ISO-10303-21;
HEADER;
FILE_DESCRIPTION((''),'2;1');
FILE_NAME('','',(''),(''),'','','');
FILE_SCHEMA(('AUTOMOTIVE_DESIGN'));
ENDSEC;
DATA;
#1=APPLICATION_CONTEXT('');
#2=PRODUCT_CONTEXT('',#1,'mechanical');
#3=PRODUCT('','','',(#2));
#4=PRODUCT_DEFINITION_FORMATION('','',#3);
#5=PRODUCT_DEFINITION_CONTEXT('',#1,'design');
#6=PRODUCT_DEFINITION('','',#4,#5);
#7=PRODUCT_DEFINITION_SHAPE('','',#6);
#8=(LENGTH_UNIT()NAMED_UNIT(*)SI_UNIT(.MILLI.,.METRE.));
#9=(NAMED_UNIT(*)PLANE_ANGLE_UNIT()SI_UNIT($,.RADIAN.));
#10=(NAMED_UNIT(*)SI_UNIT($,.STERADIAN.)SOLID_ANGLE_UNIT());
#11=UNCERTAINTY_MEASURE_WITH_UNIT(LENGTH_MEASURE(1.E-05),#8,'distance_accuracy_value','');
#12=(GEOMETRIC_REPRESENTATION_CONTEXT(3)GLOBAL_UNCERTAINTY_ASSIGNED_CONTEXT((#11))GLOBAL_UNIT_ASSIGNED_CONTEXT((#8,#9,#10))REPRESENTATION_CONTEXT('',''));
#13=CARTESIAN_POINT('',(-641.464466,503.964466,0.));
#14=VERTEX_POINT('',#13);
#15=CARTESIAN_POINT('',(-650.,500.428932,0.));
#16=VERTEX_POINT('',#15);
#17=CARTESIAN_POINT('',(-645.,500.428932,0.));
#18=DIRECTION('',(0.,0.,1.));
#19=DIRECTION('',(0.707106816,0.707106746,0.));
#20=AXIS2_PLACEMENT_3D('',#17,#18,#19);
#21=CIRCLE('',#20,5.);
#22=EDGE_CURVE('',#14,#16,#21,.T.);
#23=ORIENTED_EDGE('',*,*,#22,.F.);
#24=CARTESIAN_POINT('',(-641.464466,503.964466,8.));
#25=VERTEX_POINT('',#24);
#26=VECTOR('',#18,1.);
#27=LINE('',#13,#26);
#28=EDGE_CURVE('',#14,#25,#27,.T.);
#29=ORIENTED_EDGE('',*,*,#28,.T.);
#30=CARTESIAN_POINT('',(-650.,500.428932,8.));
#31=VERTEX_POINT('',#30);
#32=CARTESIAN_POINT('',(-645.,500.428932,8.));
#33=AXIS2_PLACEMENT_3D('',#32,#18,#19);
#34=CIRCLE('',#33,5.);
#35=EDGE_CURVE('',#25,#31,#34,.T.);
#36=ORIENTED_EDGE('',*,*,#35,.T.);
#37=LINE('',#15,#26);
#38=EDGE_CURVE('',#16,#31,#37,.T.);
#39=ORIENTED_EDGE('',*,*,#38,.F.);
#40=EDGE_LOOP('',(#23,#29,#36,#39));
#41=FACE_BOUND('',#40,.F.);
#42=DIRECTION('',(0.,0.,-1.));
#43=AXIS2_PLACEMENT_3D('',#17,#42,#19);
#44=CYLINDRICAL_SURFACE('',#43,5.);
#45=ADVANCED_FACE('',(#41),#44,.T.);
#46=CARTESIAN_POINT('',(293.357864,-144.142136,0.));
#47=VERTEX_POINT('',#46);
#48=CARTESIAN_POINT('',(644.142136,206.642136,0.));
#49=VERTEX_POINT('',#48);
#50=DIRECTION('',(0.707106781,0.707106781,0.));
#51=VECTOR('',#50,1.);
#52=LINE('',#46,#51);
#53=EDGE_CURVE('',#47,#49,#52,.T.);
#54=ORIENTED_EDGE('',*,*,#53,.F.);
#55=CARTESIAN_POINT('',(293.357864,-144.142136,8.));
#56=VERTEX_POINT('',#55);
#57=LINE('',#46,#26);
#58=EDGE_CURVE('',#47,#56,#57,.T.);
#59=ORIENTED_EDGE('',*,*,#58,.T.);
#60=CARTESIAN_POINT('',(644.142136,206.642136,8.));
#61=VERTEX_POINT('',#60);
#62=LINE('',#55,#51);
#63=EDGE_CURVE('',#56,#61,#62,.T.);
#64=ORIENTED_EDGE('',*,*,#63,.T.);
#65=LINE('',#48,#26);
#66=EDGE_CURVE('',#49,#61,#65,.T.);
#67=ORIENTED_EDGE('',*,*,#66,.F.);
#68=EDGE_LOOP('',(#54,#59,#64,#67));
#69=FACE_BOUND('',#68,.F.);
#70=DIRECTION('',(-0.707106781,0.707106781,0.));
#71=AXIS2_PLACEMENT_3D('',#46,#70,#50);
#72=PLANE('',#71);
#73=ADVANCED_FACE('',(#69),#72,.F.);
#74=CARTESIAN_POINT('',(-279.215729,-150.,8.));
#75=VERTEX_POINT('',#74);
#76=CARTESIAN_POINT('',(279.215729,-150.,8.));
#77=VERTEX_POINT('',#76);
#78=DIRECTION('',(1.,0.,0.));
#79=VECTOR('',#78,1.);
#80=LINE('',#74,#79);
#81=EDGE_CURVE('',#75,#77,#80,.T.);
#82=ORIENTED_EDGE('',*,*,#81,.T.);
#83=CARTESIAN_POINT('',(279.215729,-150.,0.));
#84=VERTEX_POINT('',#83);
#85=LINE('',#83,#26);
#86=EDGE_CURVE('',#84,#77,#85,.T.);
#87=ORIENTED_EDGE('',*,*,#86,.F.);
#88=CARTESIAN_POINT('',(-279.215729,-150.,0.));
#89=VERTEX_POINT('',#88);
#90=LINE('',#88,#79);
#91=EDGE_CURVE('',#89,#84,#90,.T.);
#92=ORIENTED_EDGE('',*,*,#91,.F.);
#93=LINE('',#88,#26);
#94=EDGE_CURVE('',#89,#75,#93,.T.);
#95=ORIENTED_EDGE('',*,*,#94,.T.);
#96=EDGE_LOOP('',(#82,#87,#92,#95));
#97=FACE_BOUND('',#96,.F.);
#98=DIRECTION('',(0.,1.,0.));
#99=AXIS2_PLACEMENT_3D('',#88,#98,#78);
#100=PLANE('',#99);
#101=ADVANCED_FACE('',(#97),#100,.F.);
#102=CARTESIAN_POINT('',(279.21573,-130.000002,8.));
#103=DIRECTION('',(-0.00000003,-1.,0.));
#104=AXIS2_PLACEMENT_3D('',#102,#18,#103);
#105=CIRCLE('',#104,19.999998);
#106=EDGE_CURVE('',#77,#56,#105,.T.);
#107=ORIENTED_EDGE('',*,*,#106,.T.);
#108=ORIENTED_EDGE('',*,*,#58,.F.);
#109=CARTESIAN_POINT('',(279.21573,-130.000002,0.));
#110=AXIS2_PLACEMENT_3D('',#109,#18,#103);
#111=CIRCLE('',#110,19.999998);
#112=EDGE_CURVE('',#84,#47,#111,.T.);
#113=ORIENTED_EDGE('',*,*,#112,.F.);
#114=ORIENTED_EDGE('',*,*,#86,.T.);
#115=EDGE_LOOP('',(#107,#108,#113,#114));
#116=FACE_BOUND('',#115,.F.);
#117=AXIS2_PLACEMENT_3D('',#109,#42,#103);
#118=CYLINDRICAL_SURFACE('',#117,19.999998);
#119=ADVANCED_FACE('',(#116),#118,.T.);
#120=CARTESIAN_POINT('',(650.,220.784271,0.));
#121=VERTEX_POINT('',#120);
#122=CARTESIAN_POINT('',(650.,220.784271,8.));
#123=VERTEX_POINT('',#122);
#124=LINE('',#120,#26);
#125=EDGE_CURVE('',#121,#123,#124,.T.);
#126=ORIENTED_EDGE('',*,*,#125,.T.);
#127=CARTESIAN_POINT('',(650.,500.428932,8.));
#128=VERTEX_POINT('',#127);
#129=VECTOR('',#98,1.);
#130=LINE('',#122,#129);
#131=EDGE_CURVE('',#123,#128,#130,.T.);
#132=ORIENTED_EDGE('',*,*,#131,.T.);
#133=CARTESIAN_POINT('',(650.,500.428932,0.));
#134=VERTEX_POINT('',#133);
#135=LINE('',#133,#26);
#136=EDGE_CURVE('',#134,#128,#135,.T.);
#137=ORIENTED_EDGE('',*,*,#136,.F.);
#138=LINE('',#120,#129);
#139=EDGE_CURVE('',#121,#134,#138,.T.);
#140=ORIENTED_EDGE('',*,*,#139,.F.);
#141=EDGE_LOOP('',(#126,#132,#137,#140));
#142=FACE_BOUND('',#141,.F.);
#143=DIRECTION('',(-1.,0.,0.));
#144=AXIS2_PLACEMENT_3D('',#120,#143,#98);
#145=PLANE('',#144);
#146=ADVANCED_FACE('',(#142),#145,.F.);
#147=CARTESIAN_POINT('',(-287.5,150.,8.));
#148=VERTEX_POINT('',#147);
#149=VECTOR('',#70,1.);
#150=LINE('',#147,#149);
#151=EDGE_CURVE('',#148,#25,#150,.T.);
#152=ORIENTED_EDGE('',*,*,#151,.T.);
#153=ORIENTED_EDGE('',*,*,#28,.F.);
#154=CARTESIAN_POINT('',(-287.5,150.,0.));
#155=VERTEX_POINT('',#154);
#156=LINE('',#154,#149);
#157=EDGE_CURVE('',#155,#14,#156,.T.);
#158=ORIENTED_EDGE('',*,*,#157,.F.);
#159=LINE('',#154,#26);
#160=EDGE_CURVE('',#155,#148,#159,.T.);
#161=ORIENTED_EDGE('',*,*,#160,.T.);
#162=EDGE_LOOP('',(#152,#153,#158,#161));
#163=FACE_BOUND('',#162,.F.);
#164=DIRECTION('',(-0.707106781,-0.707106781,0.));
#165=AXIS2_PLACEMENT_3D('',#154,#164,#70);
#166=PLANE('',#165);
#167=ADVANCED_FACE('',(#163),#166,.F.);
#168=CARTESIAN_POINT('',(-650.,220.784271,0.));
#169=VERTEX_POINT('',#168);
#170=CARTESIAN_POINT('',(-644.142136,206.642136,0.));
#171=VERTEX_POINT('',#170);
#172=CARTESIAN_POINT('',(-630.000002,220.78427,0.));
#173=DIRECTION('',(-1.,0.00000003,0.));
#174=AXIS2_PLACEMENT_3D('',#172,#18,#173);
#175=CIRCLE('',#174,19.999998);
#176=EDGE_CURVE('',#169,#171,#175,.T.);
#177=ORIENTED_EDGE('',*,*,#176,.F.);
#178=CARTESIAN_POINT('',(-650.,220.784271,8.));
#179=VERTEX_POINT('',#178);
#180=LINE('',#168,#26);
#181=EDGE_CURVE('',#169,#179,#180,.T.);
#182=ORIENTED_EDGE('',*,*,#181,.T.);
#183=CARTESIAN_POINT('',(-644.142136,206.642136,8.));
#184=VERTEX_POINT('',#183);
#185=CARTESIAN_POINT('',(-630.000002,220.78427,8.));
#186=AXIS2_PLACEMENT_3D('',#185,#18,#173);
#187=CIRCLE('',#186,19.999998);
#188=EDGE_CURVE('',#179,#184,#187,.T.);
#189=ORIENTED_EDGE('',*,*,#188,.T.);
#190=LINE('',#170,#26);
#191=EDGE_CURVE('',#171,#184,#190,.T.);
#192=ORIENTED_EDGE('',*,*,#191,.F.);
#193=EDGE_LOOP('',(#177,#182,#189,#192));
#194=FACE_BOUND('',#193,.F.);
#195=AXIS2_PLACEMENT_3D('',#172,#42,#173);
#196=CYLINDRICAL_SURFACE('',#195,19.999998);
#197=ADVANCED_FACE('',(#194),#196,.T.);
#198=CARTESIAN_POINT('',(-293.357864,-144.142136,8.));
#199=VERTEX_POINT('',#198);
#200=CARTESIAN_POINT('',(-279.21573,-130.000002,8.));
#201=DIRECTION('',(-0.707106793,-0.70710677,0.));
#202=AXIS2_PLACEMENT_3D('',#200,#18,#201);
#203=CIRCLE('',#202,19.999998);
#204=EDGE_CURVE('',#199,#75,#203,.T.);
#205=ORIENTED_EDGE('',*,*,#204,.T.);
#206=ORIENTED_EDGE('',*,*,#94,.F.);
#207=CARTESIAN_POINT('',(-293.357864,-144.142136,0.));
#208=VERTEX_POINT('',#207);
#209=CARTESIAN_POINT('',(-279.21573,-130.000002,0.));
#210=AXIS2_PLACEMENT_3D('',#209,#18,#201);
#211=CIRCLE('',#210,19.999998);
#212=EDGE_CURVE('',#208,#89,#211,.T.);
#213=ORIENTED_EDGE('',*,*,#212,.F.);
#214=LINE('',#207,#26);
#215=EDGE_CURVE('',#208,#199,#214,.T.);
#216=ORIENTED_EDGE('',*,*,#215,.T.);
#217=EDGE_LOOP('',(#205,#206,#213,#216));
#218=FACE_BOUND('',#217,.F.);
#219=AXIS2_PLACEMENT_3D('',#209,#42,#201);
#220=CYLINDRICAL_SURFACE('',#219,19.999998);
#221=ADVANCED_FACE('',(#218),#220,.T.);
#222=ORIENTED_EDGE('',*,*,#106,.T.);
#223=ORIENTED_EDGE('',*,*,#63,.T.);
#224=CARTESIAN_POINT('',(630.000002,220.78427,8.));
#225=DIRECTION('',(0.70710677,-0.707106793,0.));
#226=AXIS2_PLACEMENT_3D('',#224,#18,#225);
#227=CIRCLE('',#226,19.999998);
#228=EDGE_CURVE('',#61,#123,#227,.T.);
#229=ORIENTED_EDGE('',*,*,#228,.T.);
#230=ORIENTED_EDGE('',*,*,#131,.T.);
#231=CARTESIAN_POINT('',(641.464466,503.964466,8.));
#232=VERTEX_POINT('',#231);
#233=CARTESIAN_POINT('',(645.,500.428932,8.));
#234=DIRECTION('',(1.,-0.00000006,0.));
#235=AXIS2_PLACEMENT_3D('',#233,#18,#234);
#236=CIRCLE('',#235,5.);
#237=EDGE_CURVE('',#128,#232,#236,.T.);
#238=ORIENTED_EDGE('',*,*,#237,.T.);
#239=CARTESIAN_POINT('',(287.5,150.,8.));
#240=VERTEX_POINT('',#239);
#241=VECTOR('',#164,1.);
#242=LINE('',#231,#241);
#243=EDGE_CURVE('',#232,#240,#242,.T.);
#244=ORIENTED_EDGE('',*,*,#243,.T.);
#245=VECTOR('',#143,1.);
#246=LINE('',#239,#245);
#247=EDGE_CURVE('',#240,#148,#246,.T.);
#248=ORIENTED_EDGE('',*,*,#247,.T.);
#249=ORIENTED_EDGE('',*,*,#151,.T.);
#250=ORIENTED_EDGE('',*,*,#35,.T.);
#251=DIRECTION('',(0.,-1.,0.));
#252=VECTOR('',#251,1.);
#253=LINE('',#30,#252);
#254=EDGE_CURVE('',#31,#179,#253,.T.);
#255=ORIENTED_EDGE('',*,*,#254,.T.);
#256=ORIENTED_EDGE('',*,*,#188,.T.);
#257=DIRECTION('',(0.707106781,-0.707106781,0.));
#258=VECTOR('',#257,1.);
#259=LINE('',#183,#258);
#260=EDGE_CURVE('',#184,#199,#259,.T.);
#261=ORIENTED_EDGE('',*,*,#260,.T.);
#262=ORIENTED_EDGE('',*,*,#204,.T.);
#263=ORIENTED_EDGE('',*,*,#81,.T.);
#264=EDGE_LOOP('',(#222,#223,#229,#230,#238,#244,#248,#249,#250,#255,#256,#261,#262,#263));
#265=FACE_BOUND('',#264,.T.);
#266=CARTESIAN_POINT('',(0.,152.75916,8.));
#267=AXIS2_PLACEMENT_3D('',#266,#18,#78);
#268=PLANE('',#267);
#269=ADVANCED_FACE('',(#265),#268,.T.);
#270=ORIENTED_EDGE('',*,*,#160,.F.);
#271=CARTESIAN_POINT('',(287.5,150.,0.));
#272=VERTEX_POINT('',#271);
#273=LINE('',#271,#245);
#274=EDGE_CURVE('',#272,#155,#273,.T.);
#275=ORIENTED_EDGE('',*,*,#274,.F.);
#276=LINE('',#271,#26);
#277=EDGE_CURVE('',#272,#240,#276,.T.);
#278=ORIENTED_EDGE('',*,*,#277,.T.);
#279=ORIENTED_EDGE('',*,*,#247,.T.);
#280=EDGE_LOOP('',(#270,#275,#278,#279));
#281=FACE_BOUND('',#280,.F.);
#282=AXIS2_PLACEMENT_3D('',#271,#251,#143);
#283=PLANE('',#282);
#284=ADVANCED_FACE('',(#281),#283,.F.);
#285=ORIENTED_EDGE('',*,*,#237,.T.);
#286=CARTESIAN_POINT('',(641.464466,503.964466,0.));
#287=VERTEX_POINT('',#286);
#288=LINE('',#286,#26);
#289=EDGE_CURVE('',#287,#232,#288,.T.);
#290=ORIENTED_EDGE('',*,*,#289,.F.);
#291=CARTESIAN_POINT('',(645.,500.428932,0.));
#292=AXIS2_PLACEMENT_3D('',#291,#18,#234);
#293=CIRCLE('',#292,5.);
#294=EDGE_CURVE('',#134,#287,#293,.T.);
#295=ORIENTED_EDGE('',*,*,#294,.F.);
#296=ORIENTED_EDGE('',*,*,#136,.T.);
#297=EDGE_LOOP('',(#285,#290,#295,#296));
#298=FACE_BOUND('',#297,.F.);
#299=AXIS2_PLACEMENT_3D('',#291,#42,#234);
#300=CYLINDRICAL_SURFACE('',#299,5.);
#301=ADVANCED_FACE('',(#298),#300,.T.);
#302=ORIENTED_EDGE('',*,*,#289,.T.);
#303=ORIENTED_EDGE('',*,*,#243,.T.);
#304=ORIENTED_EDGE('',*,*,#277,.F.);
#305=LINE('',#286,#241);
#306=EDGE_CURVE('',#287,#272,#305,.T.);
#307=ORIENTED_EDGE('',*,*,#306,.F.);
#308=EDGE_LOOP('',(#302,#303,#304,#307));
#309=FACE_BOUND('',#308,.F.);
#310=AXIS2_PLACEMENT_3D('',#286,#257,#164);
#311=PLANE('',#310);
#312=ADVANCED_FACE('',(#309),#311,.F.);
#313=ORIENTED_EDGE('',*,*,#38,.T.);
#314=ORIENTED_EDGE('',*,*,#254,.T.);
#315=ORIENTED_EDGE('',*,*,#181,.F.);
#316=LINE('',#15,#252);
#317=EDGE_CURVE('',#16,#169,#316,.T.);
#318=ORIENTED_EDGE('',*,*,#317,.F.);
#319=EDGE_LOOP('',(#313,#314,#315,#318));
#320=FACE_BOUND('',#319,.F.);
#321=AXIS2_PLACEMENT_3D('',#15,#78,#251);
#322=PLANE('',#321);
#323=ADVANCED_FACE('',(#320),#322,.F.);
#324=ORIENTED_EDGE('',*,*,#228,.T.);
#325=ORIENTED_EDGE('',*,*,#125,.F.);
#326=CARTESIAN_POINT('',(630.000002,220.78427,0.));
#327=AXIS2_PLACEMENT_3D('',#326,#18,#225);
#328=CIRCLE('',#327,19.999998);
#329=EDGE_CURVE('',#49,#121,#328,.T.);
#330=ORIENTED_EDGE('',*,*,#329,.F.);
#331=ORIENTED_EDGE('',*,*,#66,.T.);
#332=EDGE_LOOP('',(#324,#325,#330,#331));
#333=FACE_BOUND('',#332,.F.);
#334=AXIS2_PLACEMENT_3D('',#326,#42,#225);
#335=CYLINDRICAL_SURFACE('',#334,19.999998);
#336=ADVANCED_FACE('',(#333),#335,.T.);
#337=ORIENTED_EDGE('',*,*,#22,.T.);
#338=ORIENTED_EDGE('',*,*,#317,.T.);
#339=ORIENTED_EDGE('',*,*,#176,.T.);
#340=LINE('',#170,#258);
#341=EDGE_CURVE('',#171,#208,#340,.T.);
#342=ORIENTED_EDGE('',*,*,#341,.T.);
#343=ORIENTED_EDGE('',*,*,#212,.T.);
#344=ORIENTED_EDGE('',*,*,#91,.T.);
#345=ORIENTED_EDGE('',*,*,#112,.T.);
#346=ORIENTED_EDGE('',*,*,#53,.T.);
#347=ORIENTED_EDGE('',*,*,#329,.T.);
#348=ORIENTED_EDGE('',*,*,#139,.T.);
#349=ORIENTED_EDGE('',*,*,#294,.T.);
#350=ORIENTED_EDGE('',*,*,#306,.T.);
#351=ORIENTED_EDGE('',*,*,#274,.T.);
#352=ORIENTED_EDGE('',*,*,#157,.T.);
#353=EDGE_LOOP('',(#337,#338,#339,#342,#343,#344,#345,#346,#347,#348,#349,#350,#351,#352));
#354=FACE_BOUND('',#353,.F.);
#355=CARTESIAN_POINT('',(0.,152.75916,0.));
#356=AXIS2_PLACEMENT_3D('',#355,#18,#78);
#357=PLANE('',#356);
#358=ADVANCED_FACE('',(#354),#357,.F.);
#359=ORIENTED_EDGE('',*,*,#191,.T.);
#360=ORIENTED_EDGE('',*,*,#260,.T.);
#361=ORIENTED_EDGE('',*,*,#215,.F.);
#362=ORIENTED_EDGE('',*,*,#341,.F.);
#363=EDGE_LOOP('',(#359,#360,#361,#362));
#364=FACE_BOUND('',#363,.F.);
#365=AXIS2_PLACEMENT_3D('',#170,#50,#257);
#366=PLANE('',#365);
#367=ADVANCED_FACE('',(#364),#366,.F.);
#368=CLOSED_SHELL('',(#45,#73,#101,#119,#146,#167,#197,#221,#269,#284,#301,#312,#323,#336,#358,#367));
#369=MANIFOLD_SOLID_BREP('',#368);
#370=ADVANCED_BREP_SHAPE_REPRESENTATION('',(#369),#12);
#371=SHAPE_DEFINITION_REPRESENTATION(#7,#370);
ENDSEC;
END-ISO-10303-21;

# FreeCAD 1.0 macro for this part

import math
import FreeCAD as App
import Part
import Sketcher
from FreeCAD import Vector

doc = App.newDocument("Part")
params = doc.addObject("Spreadsheet::Sheet", "Params")
for row, (alias, value) in enumerate([
    ("sketch1_radius", "5 mm"),
    ("sketch1_width", "575 mm"),
    ("pad1_length", "8 mm"),
], start=1):
    params.set(f"A{row}", alias)
    params.set(f"B{row}", "=" + value)
    params.setAlias(f"B{row}", alias)

body = doc.addObject("PartDesign::Body", "Body")

# Sketch on XY plane
sketch1 = body.newObject("Sketcher::SketchObject", "Sketch")
sketch1.AttachmentSupport = (doc.getObject("XY_Plane"), [""])
sketch1.MapMode = "FlatFace"
sketch1.addGeometry([
    Part.LineSegment(Vector(287.5, 150, 0), Vector(-287.5, 150, 0)),  # 0
    Part.LineSegment(Vector(-287.5, 150, 0), Vector(-641.5, 504, 0)),  # 1
    Part.ArcOfCircle(Part.Circle(Vector(-645, 500.4, 0), Vector(0, 0, 1), 5), math.radians(45), math.radians(180)),  # 2
    Part.LineSegment(Vector(-650, 500.4, 0), Vector(-650, 220.8, 0)),  # 3
    Part.ArcOfCircle(Part.Circle(Vector(-630, 220.8, 0), Vector(0, 0, 1), 20), math.radians(180), math.radians(225)),  # 4
    Part.LineSegment(Vector(-644.1, 206.6, 0), Vector(-293.4, -144.1, 0)),  # 5
    Part.ArcOfCircle(Part.Circle(Vector(-279.2, -130, 0), Vector(0, 0, 1), 20), math.radians(-135), math.radians(-90)),  # 6
    Part.LineSegment(Vector(-279.2, -150, 0), Vector(279.2, -150, 0)),  # 7
    Part.ArcOfCircle(Part.Circle(Vector(279.2, -130, 0), Vector(0, 0, 1), 20), math.radians(-90), math.radians(-45)),  # 8
    Part.LineSegment(Vector(293.4, -144.1, 0), Vector(644.1, 206.6, 0)),  # 9
    Part.ArcOfCircle(Part.Circle(Vector(630, 220.8, 0), Vector(0, 0, 1), 20), math.radians(-45), math.radians(0)),  # 10
    Part.LineSegment(Vector(650, 220.8, 0), Vector(650, 500.4, 0)),  # 11
    Part.ArcOfCircle(Part.Circle(Vector(645, 500.4, 0), Vector(0, 0, 1), 5), math.radians(0), math.radians(135)),  # 12
    Part.LineSegment(Vector(641.5, 504, 0), Vector(287.5, 150, 0)),  # 13
], False)
sketch1.addConstraint([
    Sketcher.Constraint("Coincident", 0, 2, 1, 1),
    Sketcher.Constraint("Tangent", 1, 2, 2, 1),
    Sketcher.Constraint("Tangent", 2, 2, 3, 1),
    Sketcher.Constraint("Tangent", 3, 2, 4, 1),
    Sketcher.Constraint("Tangent", 4, 2, 5, 1),
    Sketcher.Constraint("Tangent", 5, 2, 6, 1),
    Sketcher.Constraint("Tangent", 6, 2, 7, 1),
    Sketcher.Constraint("Tangent", 7, 2, 8, 1),
    Sketcher.Constraint("Tangent", 8, 2, 9, 1),
    Sketcher.Constraint("Tangent", 9, 2, 10, 1),
    Sketcher.Constraint("Tangent", 10, 2, 11, 1),
    Sketcher.Constraint("Tangent", 11, 2, 12, 1),
    Sketcher.Constraint("Tangent", 12, 2, 13, 1),
    Sketcher.Constraint("Coincident", 13, 2, 0, 1),
    Sketcher.Constraint("Horizontal", 0),
    Sketcher.Constraint("Vertical", 3),
    Sketcher.Constraint("Horizontal", 7),
    Sketcher.Constraint("Vertical", 11),
    Sketcher.Constraint("Equal", 4, 6),
    Sketcher.Constraint("Equal", 6, 8),
    Sketcher.Constraint("Equal", 8, 10),
    Sketcher.Constraint("Equal", 2, 12),
    Sketcher.Constraint("Symmetric", 4, 3, 10, 3, -2),
    Sketcher.Constraint("Parallel", 1, 5),
    Sketcher.Constraint("Perpendicular", 5, 9),
    Sketcher.Constraint("Parallel", 9, 13),
    Sketcher.Constraint("Horizontal", 2, 3, 12, 3),
    Sketcher.Constraint("Equal", 5, 9),
    Sketcher.Constraint("Radius", 2, 5.0),
    Sketcher.Constraint("DistanceX", 0, 2, 0, 1, 575.0),
    Sketcher.Constraint("DistanceX", 2, 3, -1, 1, 645.0),
    Sketcher.Constraint("DistanceY", -1, 1, 0, 2, 150.0),
    Sketcher.Constraint("DistanceY", 6, 2, -1, 1, 150.0),
    Sketcher.Constraint("Radius", 4, 19.999998),
    Sketcher.Constraint("DistanceX", 7, 1, 7, 2, 558.431458),
])
sketch1.setExpression("Constraints[28]", "Params.sketch1_radius")
sketch1.setExpression("Constraints[29]", "Params.sketch1_width")
pad1 = body.newObject("PartDesign::Pad", "Pad")
pad1.Profile = sketch1
pad1.setExpression("Length", "Params.pad1_length")

doc.recompute()
